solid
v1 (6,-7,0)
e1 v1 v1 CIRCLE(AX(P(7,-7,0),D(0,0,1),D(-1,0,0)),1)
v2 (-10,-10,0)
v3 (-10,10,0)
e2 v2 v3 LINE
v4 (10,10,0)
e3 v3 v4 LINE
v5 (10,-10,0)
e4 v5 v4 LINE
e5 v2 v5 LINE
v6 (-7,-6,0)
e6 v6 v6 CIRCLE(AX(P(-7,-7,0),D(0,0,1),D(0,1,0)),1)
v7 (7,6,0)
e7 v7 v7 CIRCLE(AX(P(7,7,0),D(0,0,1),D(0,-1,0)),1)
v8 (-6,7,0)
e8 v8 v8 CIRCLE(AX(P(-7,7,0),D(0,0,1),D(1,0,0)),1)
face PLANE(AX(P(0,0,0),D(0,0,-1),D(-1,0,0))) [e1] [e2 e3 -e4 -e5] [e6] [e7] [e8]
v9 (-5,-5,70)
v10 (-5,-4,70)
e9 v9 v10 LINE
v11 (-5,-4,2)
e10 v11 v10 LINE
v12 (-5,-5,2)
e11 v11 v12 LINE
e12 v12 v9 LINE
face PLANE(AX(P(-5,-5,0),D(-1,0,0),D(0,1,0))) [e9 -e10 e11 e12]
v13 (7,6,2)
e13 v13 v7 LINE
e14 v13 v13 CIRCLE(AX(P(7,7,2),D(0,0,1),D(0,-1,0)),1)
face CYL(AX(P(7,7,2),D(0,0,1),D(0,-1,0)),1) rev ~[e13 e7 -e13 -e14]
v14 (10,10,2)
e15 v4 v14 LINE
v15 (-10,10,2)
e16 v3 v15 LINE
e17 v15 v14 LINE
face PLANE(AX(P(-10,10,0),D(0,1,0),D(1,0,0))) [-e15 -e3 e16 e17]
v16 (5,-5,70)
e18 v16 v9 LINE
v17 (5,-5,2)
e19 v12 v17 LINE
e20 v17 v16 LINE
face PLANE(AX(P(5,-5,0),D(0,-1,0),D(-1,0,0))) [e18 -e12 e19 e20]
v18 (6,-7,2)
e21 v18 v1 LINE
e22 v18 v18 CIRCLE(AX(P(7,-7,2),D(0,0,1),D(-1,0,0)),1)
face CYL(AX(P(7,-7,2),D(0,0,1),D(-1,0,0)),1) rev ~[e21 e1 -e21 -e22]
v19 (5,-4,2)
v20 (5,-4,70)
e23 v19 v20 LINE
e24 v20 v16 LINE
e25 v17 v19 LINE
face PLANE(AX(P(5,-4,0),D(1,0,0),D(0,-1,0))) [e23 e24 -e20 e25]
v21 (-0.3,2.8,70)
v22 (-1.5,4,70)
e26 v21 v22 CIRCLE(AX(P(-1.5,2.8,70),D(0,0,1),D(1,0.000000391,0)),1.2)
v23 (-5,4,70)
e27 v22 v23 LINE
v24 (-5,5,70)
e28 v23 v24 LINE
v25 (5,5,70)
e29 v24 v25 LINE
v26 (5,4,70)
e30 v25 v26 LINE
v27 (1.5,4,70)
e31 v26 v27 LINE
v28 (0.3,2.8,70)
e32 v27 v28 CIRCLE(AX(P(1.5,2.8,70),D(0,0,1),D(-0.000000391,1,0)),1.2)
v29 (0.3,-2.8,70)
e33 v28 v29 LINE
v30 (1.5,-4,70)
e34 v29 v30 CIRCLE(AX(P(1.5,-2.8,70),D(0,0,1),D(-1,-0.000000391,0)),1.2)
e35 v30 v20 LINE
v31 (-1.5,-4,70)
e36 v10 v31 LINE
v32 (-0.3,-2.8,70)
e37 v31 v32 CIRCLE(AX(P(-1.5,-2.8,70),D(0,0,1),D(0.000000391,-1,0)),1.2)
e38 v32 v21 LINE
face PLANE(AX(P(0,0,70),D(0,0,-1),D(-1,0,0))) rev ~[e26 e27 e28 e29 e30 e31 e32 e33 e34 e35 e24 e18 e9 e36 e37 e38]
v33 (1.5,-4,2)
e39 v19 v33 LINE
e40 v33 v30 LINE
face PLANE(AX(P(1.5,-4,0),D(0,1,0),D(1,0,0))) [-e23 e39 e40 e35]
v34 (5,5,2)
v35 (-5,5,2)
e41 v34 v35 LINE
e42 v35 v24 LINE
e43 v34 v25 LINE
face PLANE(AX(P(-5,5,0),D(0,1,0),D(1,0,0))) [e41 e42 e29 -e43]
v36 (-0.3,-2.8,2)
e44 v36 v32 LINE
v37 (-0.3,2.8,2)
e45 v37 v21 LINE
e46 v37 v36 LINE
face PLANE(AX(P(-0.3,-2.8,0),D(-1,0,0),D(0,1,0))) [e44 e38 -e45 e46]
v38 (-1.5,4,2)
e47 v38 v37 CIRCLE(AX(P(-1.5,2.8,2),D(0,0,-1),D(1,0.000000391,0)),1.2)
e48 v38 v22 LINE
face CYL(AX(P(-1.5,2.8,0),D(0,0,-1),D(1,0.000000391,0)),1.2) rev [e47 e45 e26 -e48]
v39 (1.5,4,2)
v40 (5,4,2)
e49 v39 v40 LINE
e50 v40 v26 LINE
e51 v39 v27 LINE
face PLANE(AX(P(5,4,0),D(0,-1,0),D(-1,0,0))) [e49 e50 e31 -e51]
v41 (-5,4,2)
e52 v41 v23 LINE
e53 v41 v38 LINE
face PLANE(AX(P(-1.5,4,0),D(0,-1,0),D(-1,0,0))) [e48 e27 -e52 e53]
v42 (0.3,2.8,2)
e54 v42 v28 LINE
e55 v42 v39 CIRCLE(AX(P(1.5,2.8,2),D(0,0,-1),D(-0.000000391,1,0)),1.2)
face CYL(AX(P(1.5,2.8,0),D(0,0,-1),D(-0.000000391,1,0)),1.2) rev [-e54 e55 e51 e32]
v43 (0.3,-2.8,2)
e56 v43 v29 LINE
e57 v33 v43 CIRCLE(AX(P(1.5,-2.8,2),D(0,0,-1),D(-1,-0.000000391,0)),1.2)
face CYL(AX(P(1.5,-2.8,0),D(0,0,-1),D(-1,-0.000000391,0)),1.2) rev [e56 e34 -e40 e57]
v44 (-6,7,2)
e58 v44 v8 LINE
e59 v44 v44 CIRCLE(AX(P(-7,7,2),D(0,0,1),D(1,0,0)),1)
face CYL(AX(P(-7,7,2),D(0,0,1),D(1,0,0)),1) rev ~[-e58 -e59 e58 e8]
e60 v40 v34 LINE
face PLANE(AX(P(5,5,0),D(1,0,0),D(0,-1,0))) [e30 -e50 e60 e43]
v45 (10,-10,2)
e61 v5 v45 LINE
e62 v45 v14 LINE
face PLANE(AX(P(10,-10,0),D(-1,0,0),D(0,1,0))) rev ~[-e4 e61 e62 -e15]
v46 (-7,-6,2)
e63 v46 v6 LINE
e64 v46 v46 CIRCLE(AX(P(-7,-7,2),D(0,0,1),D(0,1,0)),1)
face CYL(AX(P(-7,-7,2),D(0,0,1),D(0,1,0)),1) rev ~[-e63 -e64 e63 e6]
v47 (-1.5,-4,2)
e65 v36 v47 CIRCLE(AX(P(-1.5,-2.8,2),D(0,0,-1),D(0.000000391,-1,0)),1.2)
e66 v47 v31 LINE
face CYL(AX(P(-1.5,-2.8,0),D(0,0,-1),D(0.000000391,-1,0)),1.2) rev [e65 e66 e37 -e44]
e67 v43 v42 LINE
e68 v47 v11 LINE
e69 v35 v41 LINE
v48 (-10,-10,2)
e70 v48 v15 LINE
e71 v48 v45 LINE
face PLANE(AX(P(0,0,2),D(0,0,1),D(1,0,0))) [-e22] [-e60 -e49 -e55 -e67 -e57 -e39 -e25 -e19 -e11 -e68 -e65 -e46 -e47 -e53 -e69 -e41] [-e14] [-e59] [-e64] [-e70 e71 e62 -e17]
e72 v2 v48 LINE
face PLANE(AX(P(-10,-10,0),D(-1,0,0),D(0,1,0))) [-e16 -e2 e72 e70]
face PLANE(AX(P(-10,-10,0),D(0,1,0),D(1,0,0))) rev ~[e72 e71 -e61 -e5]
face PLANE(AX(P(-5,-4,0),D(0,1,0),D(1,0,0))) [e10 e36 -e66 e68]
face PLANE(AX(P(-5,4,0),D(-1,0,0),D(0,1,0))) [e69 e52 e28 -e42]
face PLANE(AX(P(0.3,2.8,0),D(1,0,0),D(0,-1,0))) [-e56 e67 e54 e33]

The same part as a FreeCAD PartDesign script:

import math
import FreeCAD as App
import Part
import Sketcher

doc = App.newDocument("Part")
params = doc.addObject("Spreadsheet::Sheet", "Params")
for row, (alias, value) in enumerate([
    ("sketch1_radius", "1.2 mm"),
    ("sketch1_width", "10 mm"),
    ("sketch1_height", "1 mm"),
    ("sketch1_width2", "3.5 mm"),
    ("sketch1_height2", "5.6 mm"),
    ("pad1_length", "70 mm"),
    ("sketch2_width", "20 mm"),
    ("pad2_length", "2 mm"),
    ("sketch3_diameter", "2 mm"),
    ("pocket1_length", "5 mm"),
], start=1):
    params.set(f"A{row}", alias)
    params.set(f"B{row}", "=" + value)
    params.setAlias(f"B{row}", alias)

body = doc.addObject("PartDesign::Body", "Body")

sketch1 = doc.addObject("Sketcher::SketchObject", "Sketch")
body.addObject(sketch1)
sketch1.AttachmentSupport = (doc.XY_Plane, [""])
sketch1.MapMode = "FlatFace"
sketch1.addGeometry([
    Part.LineSegment(App.Vector(-5, 5, 0), App.Vector(-5, 4, 0)),
    Part.LineSegment(App.Vector(-5, 4, 0), App.Vector(-1.5, 4, 0)),
    Part.ArcOfCircle(Part.Circle(App.Vector(-1.5, 2.8, 0), App.Vector(0, 0, 1), 1.2), math.radians(0.000022), math.radians(89.999978)),
    Part.LineSegment(App.Vector(-0.3, 2.8, 0), App.Vector(-0.3, -2.8, 0)),
    Part.ArcOfCircle(Part.Circle(App.Vector(-1.5, -2.8, 0), App.Vector(0, 0, 1), 1.2), math.radians(-89.999978), math.radians(-0.000022)),
    Part.LineSegment(App.Vector(-1.5, -4, 0), App.Vector(-5, -4, 0)),
    Part.LineSegment(App.Vector(-5, -4, 0), App.Vector(-5, -5, 0)),
    Part.LineSegment(App.Vector(-5, -5, 0), App.Vector(5, -5, 0)),
    Part.LineSegment(App.Vector(5, -5, 0), App.Vector(5, -4, 0)),
    Part.LineSegment(App.Vector(5, -4, 0), App.Vector(1.5, -4, 0)),
    Part.ArcOfCircle(Part.Circle(App.Vector(1.5, -2.8, 0), App.Vector(0, 0, 1), 1.2), math.radians(-179.999978), math.radians(-90.000022)),
    Part.LineSegment(App.Vector(0.3, -2.8, 0), App.Vector(0.3, 2.8, 0)),
    Part.ArcOfCircle(Part.Circle(App.Vector(1.5, 2.8, 0), App.Vector(0, 0, 1), 1.2), math.radians(90.000022), math.radians(179.999978)),
    Part.LineSegment(App.Vector(1.5, 4, 0), App.Vector(5, 4, 0)),
    Part.LineSegment(App.Vector(5, 4, 0), App.Vector(5, 5, 0)),
    Part.LineSegment(App.Vector(5, 5, 0), App.Vector(-5, 5, 0)),
], False)
sketch1.addConstraint([
    Sketcher.Constraint("Coincident", 0, 2, 1, 1),
    Sketcher.Constraint("Tangent", 1, 2, 2, 2),
    Sketcher.Constraint("Tangent", 2, 1, 3, 1),
    Sketcher.Constraint("Tangent", 3, 2, 4, 2),
    Sketcher.Constraint("Tangent", 4, 1, 5, 1),
    Sketcher.Constraint("Coincident", 5, 2, 6, 1),
    Sketcher.Constraint("Coincident", 6, 2, 7, 1),
    Sketcher.Constraint("Coincident", 7, 2, 8, 1),
    Sketcher.Constraint("Coincident", 8, 2, 9, 1),
    Sketcher.Constraint("Tangent", 9, 2, 10, 2),
    Sketcher.Constraint("Tangent", 10, 1, 11, 1),
    Sketcher.Constraint("Tangent", 11, 2, 12, 2),
    Sketcher.Constraint("Tangent", 12, 1, 13, 1),
    Sketcher.Constraint("Coincident", 13, 2, 14, 1),
    Sketcher.Constraint("Coincident", 14, 2, 15, 1),
    Sketcher.Constraint("Coincident", 15, 2, 0, 1),
    Sketcher.Constraint("Vertical", 0),
    Sketcher.Constraint("Horizontal", 1),
    Sketcher.Constraint("Vertical", 3),
    Sketcher.Constraint("Horizontal", 5),
    Sketcher.Constraint("Vertical", 6),
    Sketcher.Constraint("Horizontal", 7),
    Sketcher.Constraint("Vertical", 8),
    Sketcher.Constraint("Horizontal", 9),
    Sketcher.Constraint("Vertical", 11),
    Sketcher.Constraint("Horizontal", 13),
    Sketcher.Constraint("Vertical", 14),
    Sketcher.Constraint("Horizontal", 15),
    Sketcher.Constraint("Equal", 2, 4),
    Sketcher.Constraint("Equal", 4, 10),
    Sketcher.Constraint("Equal", 10, 12),
    Sketcher.Constraint("Symmetric", 2, 3, 10, 3, -1, 1),
    Sketcher.Constraint("Symmetric", 5, 2, 13, 2, -1, 1),
    Sketcher.Constraint("Symmetric", 7, 2, 15, 2, -1, 1),
    Sketcher.Constraint("Symmetric", 5, 2, 8, 2, -2),
    Sketcher.Constraint("Radius", 2, 1.2),
    Sketcher.Constraint("DistanceX", 7, 1, 7, 2, 10.0),
    Sketcher.Constraint("DistanceY", 0, 2, 0, 1, 1.0),
    Sketcher.Constraint("DistanceX", 1, 1, 1, 2, 3.5),
    Sketcher.Constraint("DistanceY", 3, 2, 3, 1, 5.6),
])
sketch1.setExpression("Constraints[35]", "Params.sketch1_radius")
sketch1.setExpression("Constraints[36]", "Params.sketch1_width")
sketch1.setExpression("Constraints[37]", "Params.sketch1_height")
sketch1.setExpression("Constraints[38]", "Params.sketch1_width2")
sketch1.setExpression("Constraints[39]", "Params.sketch1_height2")
pad1 = doc.addObject("PartDesign::Pad", "Pad")
body.addObject(pad1)
pad1.Profile = sketch1
pad1.setExpression("Length", "Params.pad1_length")
body2 = doc.addObject("PartDesign::Body", "Body001")

sketch2 = doc.addObject("Sketcher::SketchObject", "Sketch001")
body2.addObject(sketch2)
sketch2.AttachmentSupport = (doc.getObject("XY_Plane001"), [""])
sketch2.MapMode = "FlatFace"
sketch2.addGeometry([
    Part.LineSegment(App.Vector(-10, 10, 0), App.Vector(-10, -10, 0)),
    Part.LineSegment(App.Vector(-10, -10, 0), App.Vector(10, -10, 0)),
    Part.LineSegment(App.Vector(10, -10, 0), App.Vector(10, 10, 0)),
    Part.LineSegment(App.Vector(10, 10, 0), App.Vector(-10, 10, 0)),
], False)
sketch2.addConstraint([
    Sketcher.Constraint("Coincident", 0, 2, 1, 1),
    Sketcher.Constraint("Coincident", 1, 2, 2, 1),
    Sketcher.Constraint("Coincident", 2, 2, 3, 1),
    Sketcher.Constraint("Coincident", 3, 2, 0, 1),
    Sketcher.Constraint("Vertical", 0),
    Sketcher.Constraint("Horizontal", 1),
    Sketcher.Constraint("Vertical", 2),
    Sketcher.Constraint("Horizontal", 3),
    Sketcher.Constraint("Symmetric", 0, 2, 2, 2, -1, 1),
    Sketcher.Constraint("Equal", 3, 0),
    Sketcher.Constraint("DistanceX", 1, 1, 1, 2, 20.0),
])
sketch2.setExpression("Constraints[10]", "Params.sketch2_width")
pad2 = doc.addObject("PartDesign::Pad", "Pad001")
body2.addObject(pad2)
pad2.Profile = sketch2
pad2.setExpression("Length", "Params.pad2_length")

sketch3 = doc.addObject("Sketcher::SketchObject", "Sketch002")
body2.addObject(sketch3)
sketch3.AttachmentSupport = (doc.getObject("XY_Plane001"), [""])
sketch3.MapMode = "FlatFace"
sketch3.AttachmentOffset = App.Placement(App.Vector(0, 0, 2), App.Rotation())
sketch3.addGeometry(Part.Circle(App.Vector(-7, 7, 0), App.Vector(0, 0, 1), 1), False)
sketch3.addConstraint([
    Sketcher.Constraint("Diameter", 0, 2.0),
    Sketcher.Constraint("DistanceX", 0, 3, -1, 1, 7.0),
    Sketcher.Constraint("DistanceY", -1, 1, 0, 3, 7.0),
])
sketch3.setExpression("Constraints[0]", "Params.sketch3_diameter")
pocket1 = doc.addObject("PartDesign::Pocket", "Pocket")
body2.addObject(pocket1)
pocket1.Profile = sketch3
pocket1.setExpression("Length", "Params.pocket1_length")
doc.recompute()

polarpattern = doc.addObject("PartDesign::PolarPattern", "PolarPattern")
body2.addObject(polarpattern)
polarpattern.Originals = [pocket1]
polarpattern.Axis = (doc.getObject("Z_Axis001"), [""])
polarpattern.Angle = 360
polarpattern.Occurrences = 4
body2.Tip = polarpattern
doc.recompute()

boolean = doc.addObject("PartDesign::Boolean", "Boolean")
body2.addObject(boolean)
boolean.Type = "Fuse"
boolean.addObjects([body])

doc.recompute()
